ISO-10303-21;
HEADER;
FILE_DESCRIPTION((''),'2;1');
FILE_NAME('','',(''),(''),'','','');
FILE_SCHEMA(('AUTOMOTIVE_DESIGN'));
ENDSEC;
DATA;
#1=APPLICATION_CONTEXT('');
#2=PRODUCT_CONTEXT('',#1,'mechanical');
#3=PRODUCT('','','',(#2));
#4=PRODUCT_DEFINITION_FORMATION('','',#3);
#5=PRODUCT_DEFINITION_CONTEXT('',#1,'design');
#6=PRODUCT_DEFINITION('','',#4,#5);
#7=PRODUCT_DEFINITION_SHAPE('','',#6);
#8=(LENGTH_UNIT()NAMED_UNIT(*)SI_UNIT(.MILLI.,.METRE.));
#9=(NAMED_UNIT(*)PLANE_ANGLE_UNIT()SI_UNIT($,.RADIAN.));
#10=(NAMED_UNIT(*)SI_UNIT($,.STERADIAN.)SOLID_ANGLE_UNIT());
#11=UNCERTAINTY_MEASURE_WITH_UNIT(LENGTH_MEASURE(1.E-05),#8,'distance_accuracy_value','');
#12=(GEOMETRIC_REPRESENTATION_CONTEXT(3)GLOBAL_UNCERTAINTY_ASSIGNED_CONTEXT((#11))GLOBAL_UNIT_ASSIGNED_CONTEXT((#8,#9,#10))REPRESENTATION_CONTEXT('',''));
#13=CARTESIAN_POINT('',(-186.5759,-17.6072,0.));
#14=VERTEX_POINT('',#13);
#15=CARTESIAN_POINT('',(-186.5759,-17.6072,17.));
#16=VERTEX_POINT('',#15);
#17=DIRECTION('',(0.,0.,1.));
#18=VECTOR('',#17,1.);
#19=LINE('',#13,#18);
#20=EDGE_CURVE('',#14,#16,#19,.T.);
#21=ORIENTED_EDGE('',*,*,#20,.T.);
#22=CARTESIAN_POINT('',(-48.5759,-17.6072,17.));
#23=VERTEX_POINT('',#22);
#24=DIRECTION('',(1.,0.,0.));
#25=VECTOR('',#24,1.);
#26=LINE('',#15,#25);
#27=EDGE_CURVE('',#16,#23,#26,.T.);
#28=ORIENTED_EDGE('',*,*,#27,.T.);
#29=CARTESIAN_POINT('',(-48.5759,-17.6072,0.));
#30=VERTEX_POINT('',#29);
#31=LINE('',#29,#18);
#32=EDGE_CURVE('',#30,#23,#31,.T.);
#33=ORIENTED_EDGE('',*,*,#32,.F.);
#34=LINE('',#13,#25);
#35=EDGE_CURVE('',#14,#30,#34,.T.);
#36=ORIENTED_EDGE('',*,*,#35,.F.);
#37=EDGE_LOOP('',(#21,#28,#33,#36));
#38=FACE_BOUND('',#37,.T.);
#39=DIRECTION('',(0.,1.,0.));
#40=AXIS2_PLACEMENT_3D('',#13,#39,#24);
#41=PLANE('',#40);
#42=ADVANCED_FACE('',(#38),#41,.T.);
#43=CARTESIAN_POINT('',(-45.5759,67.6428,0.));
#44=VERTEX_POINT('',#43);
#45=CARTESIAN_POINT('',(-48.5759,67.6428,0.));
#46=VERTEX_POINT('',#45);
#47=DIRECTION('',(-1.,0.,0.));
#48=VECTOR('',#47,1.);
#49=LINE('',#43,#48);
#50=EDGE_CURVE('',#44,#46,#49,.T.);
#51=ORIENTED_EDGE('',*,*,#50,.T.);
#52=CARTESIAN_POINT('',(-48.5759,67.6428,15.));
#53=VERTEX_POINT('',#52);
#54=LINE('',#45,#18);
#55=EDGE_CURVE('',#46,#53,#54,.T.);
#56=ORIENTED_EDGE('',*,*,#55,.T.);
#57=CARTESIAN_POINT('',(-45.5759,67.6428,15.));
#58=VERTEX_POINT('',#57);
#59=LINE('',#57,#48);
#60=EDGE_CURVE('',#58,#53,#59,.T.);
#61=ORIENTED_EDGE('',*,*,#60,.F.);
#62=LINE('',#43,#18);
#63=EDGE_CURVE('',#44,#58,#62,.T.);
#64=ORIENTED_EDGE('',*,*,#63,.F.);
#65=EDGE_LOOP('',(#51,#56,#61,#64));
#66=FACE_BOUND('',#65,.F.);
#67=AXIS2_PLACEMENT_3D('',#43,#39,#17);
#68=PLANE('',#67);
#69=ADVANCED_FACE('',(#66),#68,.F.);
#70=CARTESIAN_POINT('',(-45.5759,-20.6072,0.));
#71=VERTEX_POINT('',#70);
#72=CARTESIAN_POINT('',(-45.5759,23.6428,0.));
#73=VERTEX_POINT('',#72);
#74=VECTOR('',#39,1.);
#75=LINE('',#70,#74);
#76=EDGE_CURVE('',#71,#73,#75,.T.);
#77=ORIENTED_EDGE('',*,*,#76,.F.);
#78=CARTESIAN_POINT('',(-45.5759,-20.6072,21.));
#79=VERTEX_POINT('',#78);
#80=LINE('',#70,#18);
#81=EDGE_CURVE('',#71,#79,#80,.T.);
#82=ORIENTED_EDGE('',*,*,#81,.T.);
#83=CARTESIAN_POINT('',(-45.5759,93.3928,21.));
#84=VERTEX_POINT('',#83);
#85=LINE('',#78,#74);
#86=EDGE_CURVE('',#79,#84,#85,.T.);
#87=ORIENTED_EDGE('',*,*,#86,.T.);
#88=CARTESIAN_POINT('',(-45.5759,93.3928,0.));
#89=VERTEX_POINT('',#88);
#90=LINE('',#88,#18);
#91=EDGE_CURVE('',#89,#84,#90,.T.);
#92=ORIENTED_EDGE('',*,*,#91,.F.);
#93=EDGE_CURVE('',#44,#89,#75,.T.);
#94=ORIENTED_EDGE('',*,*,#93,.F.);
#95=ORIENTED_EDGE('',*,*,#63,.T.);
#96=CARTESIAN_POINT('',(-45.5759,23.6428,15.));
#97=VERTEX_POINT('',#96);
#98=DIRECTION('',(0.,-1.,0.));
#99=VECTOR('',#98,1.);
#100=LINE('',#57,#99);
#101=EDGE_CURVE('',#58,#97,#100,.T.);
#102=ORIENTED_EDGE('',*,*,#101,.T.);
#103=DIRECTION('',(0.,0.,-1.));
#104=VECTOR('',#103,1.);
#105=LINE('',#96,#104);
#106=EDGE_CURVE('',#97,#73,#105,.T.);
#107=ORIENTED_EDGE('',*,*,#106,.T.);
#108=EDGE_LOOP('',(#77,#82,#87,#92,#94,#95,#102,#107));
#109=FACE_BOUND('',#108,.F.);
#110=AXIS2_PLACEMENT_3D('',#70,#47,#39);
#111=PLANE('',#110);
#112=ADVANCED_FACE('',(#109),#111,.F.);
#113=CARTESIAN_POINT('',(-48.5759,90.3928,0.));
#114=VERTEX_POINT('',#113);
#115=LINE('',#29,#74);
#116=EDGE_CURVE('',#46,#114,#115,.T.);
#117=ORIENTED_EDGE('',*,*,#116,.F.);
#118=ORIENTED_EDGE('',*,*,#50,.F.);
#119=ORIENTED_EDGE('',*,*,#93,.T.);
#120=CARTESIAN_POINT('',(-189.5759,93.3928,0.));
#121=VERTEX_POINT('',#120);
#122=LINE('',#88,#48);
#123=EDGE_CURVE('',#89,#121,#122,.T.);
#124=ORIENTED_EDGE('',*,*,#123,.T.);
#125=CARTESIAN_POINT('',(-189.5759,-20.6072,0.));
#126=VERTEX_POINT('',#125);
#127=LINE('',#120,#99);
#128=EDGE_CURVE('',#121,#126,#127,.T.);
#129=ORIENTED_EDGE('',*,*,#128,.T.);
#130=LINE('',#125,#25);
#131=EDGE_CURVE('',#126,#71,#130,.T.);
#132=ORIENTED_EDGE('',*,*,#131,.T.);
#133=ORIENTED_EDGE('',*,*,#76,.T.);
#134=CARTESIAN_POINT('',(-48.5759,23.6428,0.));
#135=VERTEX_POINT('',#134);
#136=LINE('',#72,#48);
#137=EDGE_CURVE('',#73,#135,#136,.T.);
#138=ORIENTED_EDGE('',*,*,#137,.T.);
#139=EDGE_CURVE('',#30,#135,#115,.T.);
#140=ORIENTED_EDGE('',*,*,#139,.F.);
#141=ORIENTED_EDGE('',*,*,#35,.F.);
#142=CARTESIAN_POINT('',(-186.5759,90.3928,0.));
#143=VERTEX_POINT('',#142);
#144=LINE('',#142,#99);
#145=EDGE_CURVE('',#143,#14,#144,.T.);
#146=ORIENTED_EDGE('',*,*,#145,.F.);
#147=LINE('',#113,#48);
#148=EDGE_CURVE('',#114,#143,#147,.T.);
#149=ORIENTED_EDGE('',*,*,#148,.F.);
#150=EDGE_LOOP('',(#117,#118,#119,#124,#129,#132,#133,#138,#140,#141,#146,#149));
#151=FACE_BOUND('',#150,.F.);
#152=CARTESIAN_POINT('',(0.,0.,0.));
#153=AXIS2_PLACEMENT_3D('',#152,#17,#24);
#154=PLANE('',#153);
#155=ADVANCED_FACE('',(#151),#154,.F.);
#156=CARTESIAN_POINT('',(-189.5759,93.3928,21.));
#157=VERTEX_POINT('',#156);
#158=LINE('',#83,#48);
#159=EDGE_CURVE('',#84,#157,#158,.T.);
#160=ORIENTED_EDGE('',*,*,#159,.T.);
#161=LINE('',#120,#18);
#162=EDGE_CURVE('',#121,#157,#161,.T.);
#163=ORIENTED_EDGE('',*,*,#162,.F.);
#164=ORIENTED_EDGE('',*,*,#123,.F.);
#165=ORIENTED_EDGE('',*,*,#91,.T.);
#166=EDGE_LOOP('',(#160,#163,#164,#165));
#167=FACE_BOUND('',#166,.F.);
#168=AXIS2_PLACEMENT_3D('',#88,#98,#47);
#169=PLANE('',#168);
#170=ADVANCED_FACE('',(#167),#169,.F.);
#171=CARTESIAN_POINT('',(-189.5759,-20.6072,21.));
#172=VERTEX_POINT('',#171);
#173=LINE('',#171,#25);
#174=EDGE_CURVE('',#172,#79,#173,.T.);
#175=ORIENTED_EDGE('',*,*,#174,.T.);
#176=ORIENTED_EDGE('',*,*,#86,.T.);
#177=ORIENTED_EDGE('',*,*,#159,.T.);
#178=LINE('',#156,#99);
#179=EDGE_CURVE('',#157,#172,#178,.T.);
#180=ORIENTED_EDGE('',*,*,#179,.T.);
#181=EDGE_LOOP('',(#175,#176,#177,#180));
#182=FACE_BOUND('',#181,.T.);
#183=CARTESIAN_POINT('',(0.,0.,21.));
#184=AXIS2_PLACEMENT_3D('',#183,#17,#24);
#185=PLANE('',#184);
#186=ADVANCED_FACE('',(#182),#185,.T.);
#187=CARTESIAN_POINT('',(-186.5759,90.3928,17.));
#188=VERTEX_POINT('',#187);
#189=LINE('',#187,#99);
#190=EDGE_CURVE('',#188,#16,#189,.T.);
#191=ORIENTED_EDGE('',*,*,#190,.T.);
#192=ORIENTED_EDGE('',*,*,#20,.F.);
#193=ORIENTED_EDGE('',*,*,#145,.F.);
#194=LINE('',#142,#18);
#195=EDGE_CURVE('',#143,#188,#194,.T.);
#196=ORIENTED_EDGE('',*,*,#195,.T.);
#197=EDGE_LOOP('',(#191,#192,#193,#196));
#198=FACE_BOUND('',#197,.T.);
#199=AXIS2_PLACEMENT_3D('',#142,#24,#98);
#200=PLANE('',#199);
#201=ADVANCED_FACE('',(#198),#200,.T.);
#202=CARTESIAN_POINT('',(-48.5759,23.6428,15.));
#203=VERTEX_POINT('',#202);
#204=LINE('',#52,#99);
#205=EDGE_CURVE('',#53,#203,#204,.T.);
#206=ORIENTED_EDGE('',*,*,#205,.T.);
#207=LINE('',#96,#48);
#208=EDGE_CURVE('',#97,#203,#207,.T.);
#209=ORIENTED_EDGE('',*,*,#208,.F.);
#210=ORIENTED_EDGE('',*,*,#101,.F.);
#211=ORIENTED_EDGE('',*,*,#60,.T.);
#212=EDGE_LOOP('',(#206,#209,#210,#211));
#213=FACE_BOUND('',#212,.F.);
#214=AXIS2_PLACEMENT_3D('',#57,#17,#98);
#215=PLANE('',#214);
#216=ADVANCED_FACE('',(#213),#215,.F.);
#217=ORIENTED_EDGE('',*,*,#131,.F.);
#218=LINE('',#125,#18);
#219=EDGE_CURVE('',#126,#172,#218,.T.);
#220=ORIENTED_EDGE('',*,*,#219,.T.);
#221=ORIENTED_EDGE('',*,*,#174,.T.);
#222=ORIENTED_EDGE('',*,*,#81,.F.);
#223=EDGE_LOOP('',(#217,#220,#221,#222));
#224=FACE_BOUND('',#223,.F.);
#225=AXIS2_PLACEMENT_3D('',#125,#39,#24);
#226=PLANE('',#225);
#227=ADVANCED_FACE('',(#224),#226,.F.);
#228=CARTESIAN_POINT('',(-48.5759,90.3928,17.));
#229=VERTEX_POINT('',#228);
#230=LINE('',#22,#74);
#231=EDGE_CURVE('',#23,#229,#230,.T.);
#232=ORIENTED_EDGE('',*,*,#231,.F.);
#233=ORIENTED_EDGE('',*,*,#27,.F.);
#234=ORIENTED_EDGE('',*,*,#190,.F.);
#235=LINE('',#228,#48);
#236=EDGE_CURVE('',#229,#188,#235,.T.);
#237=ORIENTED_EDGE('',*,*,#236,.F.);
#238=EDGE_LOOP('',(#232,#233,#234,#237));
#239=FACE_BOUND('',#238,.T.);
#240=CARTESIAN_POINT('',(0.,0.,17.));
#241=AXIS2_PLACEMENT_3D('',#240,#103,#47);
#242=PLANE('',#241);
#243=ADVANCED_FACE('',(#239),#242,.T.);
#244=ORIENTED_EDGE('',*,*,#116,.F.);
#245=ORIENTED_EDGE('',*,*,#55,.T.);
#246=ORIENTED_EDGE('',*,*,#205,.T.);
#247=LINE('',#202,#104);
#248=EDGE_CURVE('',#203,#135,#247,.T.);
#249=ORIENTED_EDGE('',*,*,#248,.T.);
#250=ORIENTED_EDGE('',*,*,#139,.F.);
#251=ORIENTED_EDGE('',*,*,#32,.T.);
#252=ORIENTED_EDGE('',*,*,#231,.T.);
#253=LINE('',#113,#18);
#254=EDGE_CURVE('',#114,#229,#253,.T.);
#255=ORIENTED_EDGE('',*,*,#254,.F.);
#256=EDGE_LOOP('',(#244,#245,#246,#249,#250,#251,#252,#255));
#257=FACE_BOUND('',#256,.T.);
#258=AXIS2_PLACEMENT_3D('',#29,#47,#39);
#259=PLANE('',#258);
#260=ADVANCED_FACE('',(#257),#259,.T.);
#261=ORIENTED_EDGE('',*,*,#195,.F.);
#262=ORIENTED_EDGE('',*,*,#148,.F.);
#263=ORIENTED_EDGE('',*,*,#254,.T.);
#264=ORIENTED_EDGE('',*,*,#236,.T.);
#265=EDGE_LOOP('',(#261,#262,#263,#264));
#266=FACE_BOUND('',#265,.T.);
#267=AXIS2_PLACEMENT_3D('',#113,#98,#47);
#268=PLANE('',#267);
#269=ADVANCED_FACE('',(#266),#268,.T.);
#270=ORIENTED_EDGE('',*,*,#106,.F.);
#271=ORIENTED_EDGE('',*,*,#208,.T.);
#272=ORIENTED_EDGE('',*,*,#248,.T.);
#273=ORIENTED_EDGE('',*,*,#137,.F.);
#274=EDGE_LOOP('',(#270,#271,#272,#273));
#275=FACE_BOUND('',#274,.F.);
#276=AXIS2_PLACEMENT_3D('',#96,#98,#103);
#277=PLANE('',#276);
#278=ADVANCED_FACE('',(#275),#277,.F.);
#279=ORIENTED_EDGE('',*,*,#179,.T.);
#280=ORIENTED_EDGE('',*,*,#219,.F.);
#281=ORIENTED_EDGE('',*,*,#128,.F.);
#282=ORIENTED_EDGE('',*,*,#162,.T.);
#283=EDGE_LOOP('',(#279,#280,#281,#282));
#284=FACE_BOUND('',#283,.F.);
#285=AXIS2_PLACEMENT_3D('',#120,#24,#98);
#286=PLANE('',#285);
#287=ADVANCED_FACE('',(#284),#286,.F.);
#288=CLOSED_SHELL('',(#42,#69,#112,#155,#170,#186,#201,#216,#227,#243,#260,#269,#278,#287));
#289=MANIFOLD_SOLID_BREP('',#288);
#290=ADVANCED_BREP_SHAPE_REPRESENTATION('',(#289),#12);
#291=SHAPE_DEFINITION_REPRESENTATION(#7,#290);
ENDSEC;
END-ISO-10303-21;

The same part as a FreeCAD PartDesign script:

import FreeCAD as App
import Part
import Sketcher
Q = App.Units.Quantity

doc = App.newDocument("Part")
body = doc.addObject("PartDesign::Body", "Body")

# Sketch on XY plane
sketch1 = doc.addObject("Sketcher::SketchObject", "Sketch")
body.addObject(sketch1)
sketch1.AttachmentSupport = (doc.XY_Plane, [""])
sketch1.MapMode = "FlatFace"
sketch1.addGeometry([
    Part.LineSegment(App.Vector(-46, -21, 0), App.Vector(-46, 93, 0)),
    Part.LineSegment(App.Vector(-46, 93, 0), App.Vector(-190, 93, 0)),
    Part.LineSegment(App.Vector(-190, 93, 0), App.Vector(-190, -21, 0)),
    Part.LineSegment(App.Vector(-190, -21, 0), App.Vector(-46, -21, 0)),
], False)
sketch1.addConstraint([
    Sketcher.Constraint("Coincident", 0, 2, 1, 1),
    Sketcher.Constraint("Coincident", 1, 2, 2, 1),
    Sketcher.Constraint("Coincident", 2, 2, 3, 1),
    Sketcher.Constraint("Coincident", 3, 2, 0, 1),
    Sketcher.Constraint("Vertical", 0),
    Sketcher.Constraint("Horizontal", 1),
    Sketcher.Constraint("Vertical", 2),
    Sketcher.Constraint("Horizontal", 3),
    Sketcher.Constraint("DistanceX", 1, 2, 1, 1, Q("144 mm")),
    Sketcher.Constraint("DistanceY", 0, 1, 0, 2, Q("114 mm")),
    Sketcher.Constraint("DistanceX", 0, 2, -1, 1, Q("45.576 mm")),
    Sketcher.Constraint("DistanceY", -1, 1, 0, 2, Q("93.3928 mm")),
])
pad1 = doc.addObject("PartDesign::Pad", "Pad")
body.addObject(pad1)
pad1.Profile = sketch1
pad1.Length = 21

# Sketch on XY plane
sketch2 = doc.addObject("Sketcher::SketchObject", "Sketch001")
body.addObject(sketch2)
sketch2.AttachmentSupport = (doc.XY_Plane, [""])
sketch2.MapMode = "FlatFace"
sketch2.addGeometry([
    Part.LineSegment(App.Vector(-49, -18, 0), App.Vector(-187, -18, 0)),
    Part.LineSegment(App.Vector(-187, -18, 0), App.Vector(-187, 90, 0)),
    Part.LineSegment(App.Vector(-187, 90, 0), App.Vector(-49, 90, 0)),
    Part.LineSegment(App.Vector(-49, 90, 0), App.Vector(-49, -18, 0)),
], False)
sketch2.addConstraint([
    Sketcher.Constraint("Coincident", 0, 2, 1, 1),
    Sketcher.Constraint("Coincident", 1, 2, 2, 1),
    Sketcher.Constraint("Coincident", 2, 2, 3, 1),
    Sketcher.Constraint("Coincident", 3, 2, 0, 1),
    Sketcher.Constraint("Horizontal", 0),
    Sketcher.Constraint("Vertical", 1),
    Sketcher.Constraint("Horizontal", 2),
    Sketcher.Constraint("Vertical", 3),
    Sketcher.Constraint("DistanceX", 0, 2, 0, 1, Q("138 mm")),
    Sketcher.Constraint("DistanceY", 1, 1, 1, 2, Q("108 mm")),
    Sketcher.Constraint("DistanceX", 0, 2, -1, 1, Q("186.576 mm")),
    Sketcher.Constraint("DistanceY", 0, 2, -1, 1, Q("17.6072 mm")),
])
pocket1 = doc.addObject("PartDesign::Pocket", "Pocket")
body.addObject(pocket1)
pocket1.Profile = sketch2
pocket1.Length = 17
pocket1.Reversed = True

# Sketch on YZ plane
sketch3 = doc.addObject("Sketcher::SketchObject", "Sketch002")
body.addObject(sketch3)
sketch3.AttachmentSupport = (doc.YZ_Plane, [""])
sketch3.MapMode = "FlatFace"
sketch3.AttachmentOffset = App.Placement(App.Vector(0, 0, -45.5759), App.Rotation())
sketch3.addGeometry([
    Part.LineSegment(App.Vector(24, 0, 0), App.Vector(68, 0, 0)),
    Part.LineSegment(App.Vector(68, 0, 0), App.Vector(68, 15, 0)),
    Part.LineSegment(App.Vector(68, 15, 0), App.Vector(24, 15, 0)),
    Part.LineSegment(App.Vector(24, 15, 0), App.Vector(24, 0, 0)),
], False)
sketch3.addConstraint([
    Sketcher.Constraint("Coincident", 0, 2, 1, 1),
    Sketcher.Constraint("Coincident", 1, 2, 2, 1),
    Sketcher.Constraint("Coincident", 2, 2, 3, 1),
    Sketcher.Constraint("Coincident", 3, 2, 0, 1),
    Sketcher.Constraint("Horizontal", 0),
    Sketcher.Constraint("Vertical", 1),
    Sketcher.Constraint("Horizontal", 2),
    Sketcher.Constraint("Vertical", 3),
    Sketcher.Constraint("PointOnObject", 0, 2, -1),
    Sketcher.Constraint("DistanceX", 0, 1, 0, 2, Q("44 mm")),
    Sketcher.Constraint("DistanceY", 1, 1, 1, 2, Q("15 mm")),
    Sketcher.Constraint("DistanceX", -1, 1, 0, 2, Q("67.6428 mm")),
])
pocket2 = doc.addObject("PartDesign::Pocket", "Pocket001")
body.addObject(pocket2)
pocket2.Profile = sketch3
pocket2.Length = 3

doc.recompute()
